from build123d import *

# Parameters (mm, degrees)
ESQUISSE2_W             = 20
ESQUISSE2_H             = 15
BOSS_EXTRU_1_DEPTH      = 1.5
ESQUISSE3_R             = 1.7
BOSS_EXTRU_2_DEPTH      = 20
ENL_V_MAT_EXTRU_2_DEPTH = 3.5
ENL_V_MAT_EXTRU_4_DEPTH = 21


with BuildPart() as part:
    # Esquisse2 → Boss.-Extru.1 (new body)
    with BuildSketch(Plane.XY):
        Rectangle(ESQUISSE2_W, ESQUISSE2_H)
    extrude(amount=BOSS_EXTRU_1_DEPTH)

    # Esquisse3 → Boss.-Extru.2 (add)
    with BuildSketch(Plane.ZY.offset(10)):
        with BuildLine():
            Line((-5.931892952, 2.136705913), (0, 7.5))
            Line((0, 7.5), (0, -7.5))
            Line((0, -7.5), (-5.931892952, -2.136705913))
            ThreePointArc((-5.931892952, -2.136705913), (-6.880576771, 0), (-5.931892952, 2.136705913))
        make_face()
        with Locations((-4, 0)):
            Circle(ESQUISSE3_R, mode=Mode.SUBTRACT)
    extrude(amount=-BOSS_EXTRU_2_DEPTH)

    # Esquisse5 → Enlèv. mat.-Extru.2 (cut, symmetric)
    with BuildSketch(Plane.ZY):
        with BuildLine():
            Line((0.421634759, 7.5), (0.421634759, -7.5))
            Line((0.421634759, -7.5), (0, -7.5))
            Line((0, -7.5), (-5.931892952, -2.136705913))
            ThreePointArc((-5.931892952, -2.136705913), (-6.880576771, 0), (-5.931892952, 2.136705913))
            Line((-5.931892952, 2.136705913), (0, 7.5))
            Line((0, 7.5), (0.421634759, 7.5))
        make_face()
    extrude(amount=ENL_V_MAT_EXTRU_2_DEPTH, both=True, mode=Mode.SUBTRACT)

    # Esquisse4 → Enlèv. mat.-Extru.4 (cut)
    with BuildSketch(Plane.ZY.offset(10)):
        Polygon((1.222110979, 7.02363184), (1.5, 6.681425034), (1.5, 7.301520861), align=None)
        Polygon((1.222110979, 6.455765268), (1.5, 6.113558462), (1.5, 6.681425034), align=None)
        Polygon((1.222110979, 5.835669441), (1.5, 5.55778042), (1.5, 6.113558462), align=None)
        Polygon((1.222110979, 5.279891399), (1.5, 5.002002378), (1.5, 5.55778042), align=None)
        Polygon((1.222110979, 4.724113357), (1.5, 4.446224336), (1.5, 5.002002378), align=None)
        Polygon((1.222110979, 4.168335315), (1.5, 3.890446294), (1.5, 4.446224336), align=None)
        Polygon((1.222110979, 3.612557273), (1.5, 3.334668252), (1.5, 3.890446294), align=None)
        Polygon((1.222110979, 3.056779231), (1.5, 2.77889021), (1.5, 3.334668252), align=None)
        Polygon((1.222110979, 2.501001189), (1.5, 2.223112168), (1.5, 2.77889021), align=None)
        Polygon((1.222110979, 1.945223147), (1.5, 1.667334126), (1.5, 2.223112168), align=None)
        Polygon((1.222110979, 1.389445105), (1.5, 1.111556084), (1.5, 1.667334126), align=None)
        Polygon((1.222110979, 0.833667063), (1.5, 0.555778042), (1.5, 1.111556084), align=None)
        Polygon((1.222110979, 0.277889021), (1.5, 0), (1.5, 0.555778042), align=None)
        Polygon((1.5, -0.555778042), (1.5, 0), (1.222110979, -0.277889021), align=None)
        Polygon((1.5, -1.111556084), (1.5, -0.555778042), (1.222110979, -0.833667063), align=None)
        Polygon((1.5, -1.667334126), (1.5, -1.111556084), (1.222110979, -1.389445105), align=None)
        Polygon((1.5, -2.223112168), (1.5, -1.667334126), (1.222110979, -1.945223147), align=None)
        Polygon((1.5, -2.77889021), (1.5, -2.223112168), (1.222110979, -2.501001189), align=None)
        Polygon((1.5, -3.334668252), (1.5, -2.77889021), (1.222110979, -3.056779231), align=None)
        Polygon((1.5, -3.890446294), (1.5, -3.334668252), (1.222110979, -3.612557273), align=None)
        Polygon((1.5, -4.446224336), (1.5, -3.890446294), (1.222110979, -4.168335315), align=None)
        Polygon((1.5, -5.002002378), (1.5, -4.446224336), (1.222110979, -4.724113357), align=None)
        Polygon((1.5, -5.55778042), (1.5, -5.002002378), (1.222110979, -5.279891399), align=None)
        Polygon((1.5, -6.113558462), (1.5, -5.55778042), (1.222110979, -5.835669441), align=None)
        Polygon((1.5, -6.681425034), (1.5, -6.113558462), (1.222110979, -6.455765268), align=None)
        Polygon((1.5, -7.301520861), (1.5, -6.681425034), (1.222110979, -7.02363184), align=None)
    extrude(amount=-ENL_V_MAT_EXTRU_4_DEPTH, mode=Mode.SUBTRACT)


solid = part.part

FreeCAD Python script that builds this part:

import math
import FreeCAD as App
import Part
import Sketcher
Q = App.Units.Quantity

doc = App.newDocument("Part")
body = doc.addObject("PartDesign::Body", "Body")

sketch1 = body.newObject("Sketcher::SketchObject", "Sketch")
sketch1.AttachmentSupport = (doc.getObject("XY_Plane"), [""])
sketch1.MapMode = "FlatFace"
sketch1.addGeometry(Part.LineSegment(App.Vector(-10, 8, 0), App.Vector(-10, -8, 0)), False)
sketch1.addGeometry(Part.LineSegment(App.Vector(-10, -8, 0), App.Vector(10, -8, 0)), False)
sketch1.addGeometry(Part.LineSegment(App.Vector(10, -8, 0), App.Vector(10, 8, 0)), False)
sketch1.addGeometry(Part.LineSegment(App.Vector(10, 8, 0), App.Vector(-10, 8, 0)), False)
sketch1.addConstraint(Sketcher.Constraint("Coincident", 0, 2, 1, 1))
sketch1.addConstraint(Sketcher.Constraint("Coincident", 1, 2, 2, 1))
sketch1.addConstraint(Sketcher.Constraint("Coincident", 2, 2, 3, 1))
sketch1.addConstraint(Sketcher.Constraint("Coincident", 3, 2, 0, 1))
sketch1.addConstraint(Sketcher.Constraint("Vertical", 0))
sketch1.addConstraint(Sketcher.Constraint("Horizontal", 1))
sketch1.addConstraint(Sketcher.Constraint("Vertical", 2))
sketch1.addConstraint(Sketcher.Constraint("Horizontal", 3))
sketch1.addConstraint(Sketcher.Constraint("Symmetric", 0, 2, 2, 2, -1, 1))
sketch1.addConstraint(Sketcher.Constraint("DistanceX", 1, 1, 1, 2, Q("20 mm")))
sketch1.addConstraint(Sketcher.Constraint("DistanceY", 0, 2, 0, 1, Q("15 mm")))
pad1 = body.newObject("PartDesign::Pad", "Pad")
pad1.Profile = sketch1
pad1.Length = 1.5

sketch2 = body.newObject("Sketcher::SketchObject", "Sketch001")
sketch2.AttachmentSupport = (doc.getObject("YZ_Plane"), [""])
sketch2.MapMode = "FlatFace"
sketch2.AttachmentOffset = App.Placement(App.Vector(0, 0, -10), App.Rotation())
sketch2.addGeometry(Part.LineSegment(App.Vector(7.5, 0, 0), App.Vector(2.1, -5.9, 0)), False)
sketch2.addGeometry(Part.ArcOfCircle(Part.Circle(App.Vector(0, -4, 0), App.Vector(0, 0, 1), 2.9), math.radians(-138), math.radians(-42)), False)
sketch2.addGeometry(Part.LineSegment(App.Vector(-2.1, -5.9, 0), App.Vector(-7.5, 0, 0)), False)
sketch2.addGeometry(Part.LineSegment(App.Vector(-7.5, 0, 0), App.Vector(7.5, 0, 0)), False)
sketch2.addGeometry(Part.Circle(App.Vector(0, -4, 0), App.Vector(0, 0, 1), 1.7), False)
sketch2.addConstraint(Sketcher.Constraint("Tangent", 0, 2, 1, 2))
sketch2.addConstraint(Sketcher.Constraint("Tangent", 1, 1, 2, 1))
sketch2.addConstraint(Sketcher.Constraint("Coincident", 2, 2, 3, 1))
sketch2.addConstraint(Sketcher.Constraint("Coincident", 3, 2, 0, 1))
sketch2.addConstraint(Sketcher.Constraint("Horizontal", 3))
sketch2.addConstraint(Sketcher.Constraint("Coincident", 4, 3, 1, 3))
sketch2.addConstraint(Sketcher.Constraint("Symmetric", 2, 2, 3, 2, -1, 1))
sketch2.addConstraint(Sketcher.Constraint("PointOnObject", 1, 3, -2))
sketch2.addConstraint(Sketcher.Constraint("Diameter", 4, Q("3.4 mm")))
sketch2.addConstraint(Sketcher.Constraint("DistanceX", 3, 1, 3, 2, Q("15 mm")))
sketch2.addConstraint(Sketcher.Constraint("DistanceY", 1, 3, -1, 1, Q("4 mm")))
sketch2.addConstraint(Sketcher.Constraint("Radius", 1, Q("2.880577 mm")))
pad2 = body.newObject("PartDesign::Pad", "Pad001")
pad2.Profile = sketch2
pad2.Length = 20

sketch3 = body.newObject("Sketcher::SketchObject", "Sketch002")
sketch3.AttachmentSupport = (doc.getObject("YZ_Plane"), [""])
sketch3.MapMode = "FlatFace"
sketch3.addGeometry(Part.LineSegment(App.Vector(-7.5, 0.42, 0), App.Vector(7.5, 0.42, 0)), False)
sketch3.addGeometry(Part.LineSegment(App.Vector(7.5, 0.42, 0), App.Vector(7.5, 0, 0)), False)
sketch3.addGeometry(Part.LineSegment(App.Vector(7.5, 0, 0), App.Vector(2.14, -5.93, 0)), False)
sketch3.addGeometry(Part.ArcOfCircle(Part.Circle(App.Vector(0, -4, 0), App.Vector(0, 0, 1), 2.88), math.radians(-138), math.radians(-42)), False)
sketch3.addGeometry(Part.LineSegment(App.Vector(-2.14, -5.93, 0), App.Vector(-7.5, 0, 0)), False)
sketch3.addGeometry(Part.LineSegment(App.Vector(-7.5, 0, 0), App.Vector(-7.5, 0.42, 0)), False)
sketch3.addConstraint(Sketcher.Constraint("Coincident", 0, 2, 1, 1))
sketch3.addConstraint(Sketcher.Constraint("Coincident", 1, 2, 2, 1))
sketch3.addConstraint(Sketcher.Constraint("Tangent", 2, 2, 3, 2))
sketch3.addConstraint(Sketcher.Constraint("Tangent", 3, 1, 4, 1))
sketch3.addConstraint(Sketcher.Constraint("Coincident", 4, 2, 5, 1))
sketch3.addConstraint(Sketcher.Constraint("Coincident", 5, 2, 0, 1))
sketch3.addConstraint(Sketcher.Constraint("Horizontal", 0))
sketch3.addConstraint(Sketcher.Constraint("Vertical", 1))
sketch3.addConstraint(Sketcher.Constraint("Vertical", 5))
sketch3.addConstraint(Sketcher.Constraint("Symmetric", 1, 2, 4, 2, -1, 1))
sketch3.addConstraint(Sketcher.Constraint("Symmetric", 2, 2, 3, 1, -2))
sketch3.addConstraint(Sketcher.Constraint("DistanceX", 0, 1, 0, 2, Q("15 mm")))
sketch3.addConstraint(Sketcher.Constraint("DistanceY", 3, 3, -1, 1, Q("4 mm")))
sketch3.addConstraint(Sketcher.Constraint("Radius", 3, Q("2.880577 mm")))
sketch3.addConstraint(Sketcher.Constraint("DistanceY", 1, 2, 1, 1, Q("0.421635 mm")))
pocket1 = body.newObject("PartDesign::Pocket", "Pocket")
pocket1.Profile = sketch3
pocket1.Length = 7
pocket1.Midplane = True

sketch4 = body.newObject("Sketcher::SketchObject", "Sketch003")
sketch4.AttachmentSupport = (doc.getObject("YZ_Plane"), [""])
sketch4.MapMode = "FlatFace"
sketch4.AttachmentOffset = App.Placement(App.Vector(0, 0, -10), App.Rotation())
sketch4.addGeometry(Part.LineSegment(App.Vector(7.02, 1.22, 0), App.Vector(6.68, 1.5, 0)), False)
sketch4.addGeometry(Part.LineSegment(App.Vector(6.68, 1.5, 0), App.Vector(7.3, 1.5, 0)), False)
sketch4.addGeometry(Part.LineSegment(App.Vector(7.3, 1.5, 0), App.Vector(7.02, 1.22, 0)), False)
sketch4.addGeometry(Part.LineSegment(App.Vector(6.46, 1.22, 0), App.Vector(6.11, 1.5, 0)), False)
sketch4.addGeometry(Part.LineSegment(App.Vector(6.11, 1.5, 0), App.Vector(6.68, 1.5, 0)), False)
sketch4.addGeometry(Part.LineSegment(App.Vector(6.68, 1.5, 0), App.Vector(6.46, 1.22, 0)), False)
sketch4.addGeometry(Part.LineSegment(App.Vector(5.84, 1.22, 0), App.Vector(5.56, 1.5, 0)), False)
sketch4.addGeometry(Part.LineSegment(App.Vector(5.56, 1.5, 0), App.Vector(6.11, 1.5, 0)), False)
sketch4.addGeometry(Part.LineSegment(App.Vector(6.11, 1.5, 0), App.Vector(5.84, 1.22, 0)), False)
sketch4.addGeometry(Part.LineSegment(App.Vector(5.28, 1.22, 0), App.Vector(5, 1.5, 0)), False)
sketch4.addGeometry(Part.LineSegment(App.Vector(5, 1.5, 0), App.Vector(5.56, 1.5, 0)), False)
sketch4.addGeometry(Part.LineSegment(App.Vector(5.56, 1.5, 0), App.Vector(5.28, 1.22, 0)), False)
sketch4.addGeometry(Part.LineSegment(App.Vector(4.72, 1.22, 0), App.Vector(4.45, 1.5, 0)), False)
sketch4.addGeometry(Part.LineSegment(App.Vector(4.45, 1.5, 0), App.Vector(5, 1.5, 0)), False)
sketch4.addGeometry(Part.LineSegment(App.Vector(5, 1.5, 0), App.Vector(4.72, 1.22, 0)), False)
sketch4.addGeometry(Part.LineSegment(App.Vector(4.17, 1.22, 0), App.Vector(3.89, 1.5, 0)), False)
sketch4.addGeometry(Part.LineSegment(App.Vector(3.89, 1.5, 0), App.Vector(4.45, 1.5, 0)), False)
sketch4.addGeometry(Part.LineSegment(App.Vector(4.45, 1.5, 0), App.Vector(4.17, 1.22, 0)), False)
sketch4.addGeometry(Part.LineSegment(App.Vector(3.61, 1.22, 0), App.Vector(3.33, 1.5, 0)), False)
sketch4.addGeometry(Part.LineSegment(App.Vector(3.33, 1.5, 0), App.Vector(3.89, 1.5, 0)), False)
sketch4.addGeometry(Part.LineSegment(App.Vector(3.89, 1.5, 0), App.Vector(3.61, 1.22, 0)), False)
sketch4.addGeometry(Part.LineSegment(App.Vector(3.06, 1.22, 0), App.Vector(2.78, 1.5, 0)), False)
sketch4.addGeometry(Part.LineSegment(App.Vector(2.78, 1.5, 0), App.Vector(3.33, 1.5, 0)), False)
sketch4.addGeometry(Part.LineSegment(App.Vector(3.33, 1.5, 0), App.Vector(3.06, 1.22, 0)), False)
sketch4.addGeometry(Part.LineSegment(App.Vector(2.5, 1.22, 0), App.Vector(2.22, 1.5, 0)), False)
sketch4.addGeometry(Part.LineSegment(App.Vector(2.22, 1.5, 0), App.Vector(2.78, 1.5, 0)), False)
sketch4.addGeometry(Part.LineSegment(App.Vector(2.78, 1.5, 0), App.Vector(2.5, 1.22, 0)), False)
sketch4.addGeometry(Part.LineSegment(App.Vector(1.95, 1.22, 0), App.Vector(1.67, 1.5, 0)), False)
sketch4.addGeometry(Part.LineSegment(App.Vector(1.67, 1.5, 0), App.Vector(2.22, 1.5, 0)), False)
sketch4.addGeometry(Part.LineSegment(App.Vector(2.22, 1.5, 0), App.Vector(1.95, 1.22, 0)), False)
sketch4.addGeometry(Part.LineSegment(App.Vector(1.39, 1.22, 0), App.Vector(1.11, 1.5, 0)), False)
sketch4.addGeometry(Part.LineSegment(App.Vector(1.11, 1.5, 0), App.Vector(1.67, 1.5, 0)), False)
sketch4.addGeometry(Part.LineSegment(App.Vector(1.67, 1.5, 0), App.Vector(1.39, 1.22, 0)), False)
sketch4.addGeometry(Part.LineSegment(App.Vector(0.83, 1.22, 0), App.Vector(0.56, 1.5, 0)), False)
sketch4.addGeometry(Part.LineSegment(App.Vector(0.56, 1.5, 0), App.Vector(1.11, 1.5, 0)), False)
sketch4.addGeometry(Part.LineSegment(App.Vector(1.11, 1.5, 0), App.Vector(0.83, 1.22, 0)), False)
sketch4.addGeometry(Part.LineSegment(App.Vector(0.28, 1.22, 0), App.Vector(0, 1.5, 0)), False)
sketch4.addGeometry(Part.LineSegment(App.Vector(0, 1.5, 0), App.Vector(0.56, 1.5, 0)), False)
sketch4.addGeometry(Part.LineSegment(App.Vector(0.56, 1.5, 0), App.Vector(0.28, 1.22, 0)), False)
sketch4.addGeometry(Part.LineSegment(App.Vector(-0.56, 1.5, 0), App.Vector(0, 1.5, 0)), False)
sketch4.addGeometry(Part.LineSegment(App.Vector(0, 1.5, 0), App.Vector(-0.28, 1.22, 0)), False)
sketch4.addGeometry(Part.LineSegment(App.Vector(-0.28, 1.22, 0), App.Vector(-0.56, 1.5, 0)), False)
sketch4.addGeometry(Part.LineSegment(App.Vector(-1.11, 1.5, 0), App.Vector(-0.56, 1.5, 0)), False)
sketch4.addGeometry(Part.LineSegment(App.Vector(-0.56, 1.5, 0), App.Vector(-0.83, 1.22, 0)), False)
sketch4.addGeometry(Part.LineSegment(App.Vector(-0.83, 1.22, 0), App.Vector(-1.11, 1.5, 0)), False)
sketch4.addGeometry(Part.LineSegment(App.Vector(-1.67, 1.5, 0), App.Vector(-1.11, 1.5, 0)), False)
sketch4.addGeometry(Part.LineSegment(App.Vector(-1.11, 1.5, 0), App.Vector(-1.39, 1.22, 0)), False)
sketch4.addGeometry(Part.LineSegment(App.Vector(-1.39, 1.22, 0), App.Vector(-1.67, 1.5, 0)), False)
sketch4.addGeometry(Part.LineSegment(App.Vector(-2.22, 1.5, 0), App.Vector(-1.67, 1.5, 0)), False)
sketch4.addGeometry(Part.LineSegment(App.Vector(-1.67, 1.5, 0), App.Vector(-1.95, 1.22, 0)), False)
sketch4.addGeometry(Part.LineSegment(App.Vector(-1.95, 1.22, 0), App.Vector(-2.22, 1.5, 0)), False)
sketch4.addGeometry(Part.LineSegment(App.Vector(-2.78, 1.5, 0), App.Vector(-2.22, 1.5, 0)), False)
sketch4.addGeometry(Part.LineSegment(App.Vector(-2.22, 1.5, 0), App.Vector(-2.5, 1.22, 0)), False)
sketch4.addGeometry(Part.LineSegment(App.Vector(-2.5, 1.22, 0), App.Vector(-2.78, 1.5, 0)), False)
sketch4.addGeometry(Part.LineSegment(App.Vector(-3.33, 1.5, 0), App.Vector(-2.78, 1.5, 0)), False)
sketch4.addGeometry(Part.LineSegment(App.Vector(-2.78, 1.5, 0), App.Vector(-3.06, 1.22, 0)), False)
sketch4.addGeometry(Part.LineSegment(App.Vector(-3.06, 1.22, 0), App.Vector(-3.33, 1.5, 0)), False)
sketch4.addGeometry(Part.LineSegment(App.Vector(-3.89, 1.5, 0), App.Vector(-3.33, 1.5, 0)), False)
sketch4.addGeometry(Part.LineSegment(App.Vector(-3.33, 1.5, 0), App.Vector(-3.61, 1.22, 0)), False)
sketch4.addGeometry(Part.LineSegment(App.Vector(-3.61, 1.22, 0), App.Vector(-3.89, 1.5, 0)), False)
sketch4.addGeometry(Part.LineSegment(App.Vector(-4.45, 1.5, 0), App.Vector(-3.89, 1.5, 0)), False)
sketch4.addGeometry(Part.LineSegment(App.Vector(-3.89, 1.5, 0), App.Vector(-4.17, 1.22, 0)), False)
sketch4.addGeometry(Part.LineSegment(App.Vector(-4.17, 1.22, 0), App.Vector(-4.45, 1.5, 0)), False)
sketch4.addGeometry(Part.LineSegment(App.Vector(-5, 1.5, 0), App.Vector(-4.45, 1.5, 0)), False)
sketch4.addGeometry(Part.LineSegment(App.Vector(-4.45, 1.5, 0), App.Vector(-4.72, 1.22, 0)), False)
sketch4.addGeometry(Part.LineSegment(App.Vector(-4.72, 1.22, 0), App.Vector(-5, 1.5, 0)), False)
sketch4.addGeometry(Part.LineSegment(App.Vector(-5.56, 1.5, 0), App.Vector(-5, 1.5, 0)), False)
sketch4.addGeometry(Part.LineSegment(App.Vector(-5, 1.5, 0), App.Vector(-5.28, 1.22, 0)), False)
sketch4.addGeometry(Part.LineSegment(App.Vector(-5.28, 1.22, 0), App.Vector(-5.56, 1.5, 0)), False)
sketch4.addGeometry(Part.LineSegment(App.Vector(-6.11, 1.5, 0), App.Vector(-5.56, 1.5, 0)), False)
sketch4.addGeometry(Part.LineSegment(App.Vector(-5.56, 1.5, 0), App.Vector(-5.84, 1.22, 0)), False)
sketch4.addGeometry(Part.LineSegment(App.Vector(-5.84, 1.22, 0), App.Vector(-6.11, 1.5, 0)), False)
sketch4.addGeometry(Part.LineSegment(App.Vector(-6.68, 1.5, 0), App.Vector(-6.11, 1.5, 0)), False)
sketch4.addGeometry(Part.LineSegment(App.Vector(-6.11, 1.5, 0), App.Vector(-6.46, 1.22, 0)), False)
sketch4.addGeometry(Part.LineSegment(App.Vector(-6.46, 1.22, 0), App.Vector(-6.68, 1.5, 0)), False)
sketch4.addGeometry(Part.LineSegment(App.Vector(-7.3, 1.5, 0), App.Vector(-6.68, 1.5, 0)), False)
sketch4.addGeometry(Part.LineSegment(App.Vector(-6.68, 1.5, 0), App.Vector(-7.02, 1.22, 0)), False)
sketch4.addGeometry(Part.LineSegment(App.Vector(-7.02, 1.22, 0), App.Vector(-7.3, 1.5, 0)), False)
sketch4.addConstraint(Sketcher.Constraint("Coincident", 0, 2, 1, 1))
sketch4.addConstraint(Sketcher.Constraint("Coincident", 1, 2, 2, 1))
sketch4.addConstraint(Sketcher.Constraint("Coincident", 2, 2, 0, 1))
sketch4.addConstraint(Sketcher.Constraint("Coincident", 3, 2, 4, 1))
sketch4.addConstraint(Sketcher.Constraint("Coincident", 4, 2, 5, 1))
sketch4.addConstraint(Sketcher.Constraint("Coincident", 5, 2, 3, 1))
sketch4.addConstraint(Sketcher.Constraint("Coincident", 6, 2, 7, 1))
sketch4.addConstraint(Sketcher.Constraint("Coincident", 7, 2, 8, 1))
sketch4.addConstraint(Sketcher.Constraint("Coincident", 8, 2, 6, 1))
sketch4.addConstraint(Sketcher.Constraint("Coincident", 9, 2, 10, 1))
sketch4.addConstraint(Sketcher.Constraint("Coincident", 10, 2, 11, 1))
sketch4.addConstraint(Sketcher.Constraint("Coincident", 11, 2, 9, 1))
sketch4.addConstraint(Sketcher.Constraint("Coincident", 12, 2, 13, 1))
sketch4.addConstraint(Sketcher.Constraint("Coincident", 13, 2, 14, 1))
sketch4.addConstraint(Sketcher.Constraint("Coincident", 14, 2, 12, 1))
sketch4.addConstraint(Sketcher.Constraint("Coincident", 15, 2, 16, 1))
sketch4.addConstraint(Sketcher.Constraint("Coincident", 16, 2, 17, 1))
sketch4.addConstraint(Sketcher.Constraint("Coincident", 17, 2, 15, 1))
sketch4.addConstraint(Sketcher.Constraint("Coincident", 18, 2, 19, 1))
sketch4.addConstraint(Sketcher.Constraint("Coincident", 19, 2, 20, 1))
sketch4.addConstraint(Sketcher.Constraint("Coincident", 20, 2, 18, 1))
sketch4.addConstraint(Sketcher.Constraint("Coincident", 21, 2, 22, 1))
sketch4.addConstraint(Sketcher.Constraint("Coincident", 22, 2, 23, 1))
sketch4.addConstraint(Sketcher.Constraint("Coincident", 23, 2, 21, 1))
sketch4.addConstraint(Sketcher.Constraint("Coincident", 24, 2, 25, 1))
sketch4.addConstraint(Sketcher.Constraint("Coincident", 25, 2, 26, 1))
sketch4.addConstraint(Sketcher.Constraint("Coincident", 26, 2, 24, 1))
sketch4.addConstraint(Sketcher.Constraint("Coincident", 27, 2, 28, 1))
sketch4.addConstraint(Sketcher.Constraint("Coincident", 28, 2, 29, 1))
sketch4.addConstraint(Sketcher.Constraint("Coincident", 29, 2, 27, 1))
sketch4.addConstraint(Sketcher.Constraint("Coincident", 30, 2, 31, 1))
sketch4.addConstraint(Sketcher.Constraint("Coincident", 31, 2, 32, 1))
sketch4.addConstraint(Sketcher.Constraint("Coincident", 32, 2, 30, 1))
sketch4.addConstraint(Sketcher.Constraint("Coincident", 33, 2, 34, 1))
sketch4.addConstraint(Sketcher.Constraint("Coincident", 34, 2, 35, 1))
sketch4.addConstraint(Sketcher.Constraint("Coincident", 35, 2, 33, 1))
sketch4.addConstraint(Sketcher.Constraint("Coincident", 36, 2, 37, 1))
sketch4.addConstraint(Sketcher.Constraint("Coincident", 37, 2, 38, 1))
sketch4.addConstraint(Sketcher.Constraint("Coincident", 38, 2, 36, 1))
sketch4.addConstraint(Sketcher.Constraint("Coincident", 39, 2, 40, 1))
sketch4.addConstraint(Sketcher.Constraint("Coincident", 40, 2, 41, 1))
sketch4.addConstraint(Sketcher.Constraint("Coincident", 41, 2, 39, 1))
sketch4.addConstraint(Sketcher.Constraint("Coincident", 42, 2, 43, 1))
sketch4.addConstraint(Sketcher.Constraint("Coincident", 43, 2, 44, 1))
sketch4.addConstraint(Sketcher.Constraint("Coincident", 44, 2, 42, 1))
sketch4.addConstraint(Sketcher.Constraint("Coincident", 45, 2, 46, 1))
sketch4.addConstraint(Sketcher.Constraint("Coincident", 46, 2, 47, 1))
sketch4.addConstraint(Sketcher.Constraint("Coincident", 47, 2, 45, 1))
sketch4.addConstraint(Sketcher.Constraint("Coincident", 48, 2, 49, 1))
sketch4.addConstraint(Sketcher.Constraint("Coincident", 49, 2, 50, 1))
sketch4.addConstraint(Sketcher.Constraint("Coincident", 50, 2, 48, 1))
sketch4.addConstraint(Sketcher.Constraint("Coincident", 51, 2, 52, 1))
sketch4.addConstraint(Sketcher.Constraint("Coincident", 52, 2, 53, 1))
sketch4.addConstraint(Sketcher.Constraint("Coincident", 53, 2, 51, 1))
sketch4.addConstraint(Sketcher.Constraint("Coincident", 54, 2, 55, 1))
sketch4.addConstraint(Sketcher.Constraint("Coincident", 55, 2, 56, 1))
sketch4.addConstraint(Sketcher.Constraint("Coincident", 56, 2, 54, 1))
sketch4.addConstraint(Sketcher.Constraint("Coincident", 57, 2, 58, 1))
sketch4.addConstraint(Sketcher.Constraint("Coincident", 58, 2, 59, 1))
sketch4.addConstraint(Sketcher.Constraint("Coincident", 59, 2, 57, 1))
sketch4.addConstraint(Sketcher.Constraint("Coincident", 60, 2, 61, 1))
sketch4.addConstraint(Sketcher.Constraint("Coincident", 61, 2, 62, 1))
sketch4.addConstraint(Sketcher.Constraint("Coincident", 62, 2, 60, 1))
sketch4.addConstraint(Sketcher.Constraint("Coincident", 63, 2, 64, 1))
sketch4.addConstraint(Sketcher.Constraint("Coincident", 64, 2, 65, 1))
sketch4.addConstraint(Sketcher.Constraint("Coincident", 65, 2, 63, 1))
sketch4.addConstraint(Sketcher.Constraint("Coincident", 66, 2, 67, 1))
sketch4.addConstraint(Sketcher.Constraint("Coincident", 67, 2, 68, 1))
sketch4.addConstraint(Sketcher.Constraint("Coincident", 68, 2, 66, 1))
sketch4.addConstraint(Sketcher.Constraint("Coincident", 69, 2, 70, 1))
sketch4.addConstraint(Sketcher.Constraint("Coincident", 70, 2, 71, 1))
sketch4.addConstraint(Sketcher.Constraint("Coincident", 71, 2, 69, 1))
sketch4.addConstraint(Sketcher.Constraint("Coincident", 72, 2, 73, 1))
sketch4.addConstraint(Sketcher.Constraint("Coincident", 73, 2, 74, 1))
sketch4.addConstraint(Sketcher.Constraint("Coincident", 74, 2, 72, 1))
sketch4.addConstraint(Sketcher.Constraint("Coincident", 75, 2, 76, 1))
sketch4.addConstraint(Sketcher.Constraint("Coincident", 76, 2, 77, 1))
sketch4.addConstraint(Sketcher.Constraint("Coincident", 77, 2, 75, 1))
sketch4.addConstraint(Sketcher.Constraint("Horizontal", 1))
sketch4.addConstraint(Sketcher.Constraint("Horizontal", 4))
sketch4.addConstraint(Sketcher.Constraint("Horizontal", 7))
sketch4.addConstraint(Sketcher.Constraint("Horizontal", 10))
sketch4.addConstraint(Sketcher.Constraint("Horizontal", 13))
sketch4.addConstraint(Sketcher.Constraint("Horizontal", 16))
sketch4.addConstraint(Sketcher.Constraint("Horizontal", 19))
sketch4.addConstraint(Sketcher.Constraint("Horizontal", 22))
sketch4.addConstraint(Sketcher.Constraint("Horizontal", 25))
sketch4.addConstraint(Sketcher.Constraint("Horizontal", 28))
sketch4.addConstraint(Sketcher.Constraint("Horizontal", 31))
sketch4.addConstraint(Sketcher.Constraint("Horizontal", 34))
sketch4.addConstraint(Sketcher.Constraint("Horizontal", 37))
sketch4.addConstraint(Sketcher.Constraint("Horizontal", 39))
sketch4.addConstraint(Sketcher.Constraint("Horizontal", 42))
sketch4.addConstraint(Sketcher.Constraint("Horizontal", 45))
sketch4.addConstraint(Sketcher.Constraint("Horizontal", 48))
sketch4.addConstraint(Sketcher.Constraint("Horizontal", 51))
sketch4.addConstraint(Sketcher.Constraint("Horizontal", 54))
sketch4.addConstraint(Sketcher.Constraint("Horizontal", 57))
sketch4.addConstraint(Sketcher.Constraint("Horizontal", 60))
sketch4.addConstraint(Sketcher.Constraint("Horizontal", 63))
sketch4.addConstraint(Sketcher.Constraint("Horizontal", 66))
sketch4.addConstraint(Sketcher.Constraint("Horizontal", 69))
sketch4.addConstraint(Sketcher.Constraint("Horizontal", 72))
sketch4.addConstraint(Sketcher.Constraint("Horizontal", 75))
sketch4.addConstraint(Sketcher.Constraint("Coincident", 4, 2, 0, 2))
sketch4.addConstraint(Sketcher.Constraint("Coincident", 7, 2, 3, 2))
sketch4.addConstraint(Sketcher.Constraint("Coincident", 10, 2, 6, 2))
sketch4.addConstraint(Sketcher.Constraint("Coincident", 13, 2, 9, 2))
sketch4.addConstraint(Sketcher.Constraint("Coincident", 16, 2, 12, 2))
sketch4.addConstraint(Sketcher.Constraint("Coincident", 19, 2, 15, 2))
sketch4.addConstraint(Sketcher.Constraint("Coincident", 22, 2, 18, 2))
sketch4.addConstraint(Sketcher.Constraint("Coincident", 25, 2, 21, 2))
sketch4.addConstraint(Sketcher.Constraint("Coincident", 28, 2, 24, 2))
sketch4.addConstraint(Sketcher.Constraint("Coincident", 31, 2, 27, 2))
sketch4.addConstraint(Sketcher.Constraint("Coincident", 34, 2, 30, 2))
sketch4.addConstraint(Sketcher.Constraint("Coincident", 37, 2, 33, 2))
sketch4.addConstraint(Sketcher.Constraint("Coincident", 39, 2, 36, 2))
sketch4.addConstraint(Sketcher.Constraint("Coincident", 42, 2, 41, 2))
sketch4.addConstraint(Sketcher.Constraint("Coincident", 45, 2, 44, 2))
sketch4.addConstraint(Sketcher.Constraint("Coincident", 48, 2, 47, 2))
sketch4.addConstraint(Sketcher.Constraint("Coincident", 51, 2, 50, 2))
sketch4.addConstraint(Sketcher.Constraint("Coincident", 54, 2, 53, 2))
sketch4.addConstraint(Sketcher.Constraint("Coincident", 57, 2, 56, 2))
sketch4.addConstraint(Sketcher.Constraint("Coincident", 60, 2, 59, 2))
sketch4.addConstraint(Sketcher.Constraint("Coincident", 63, 2, 62, 2))
sketch4.addConstraint(Sketcher.Constraint("Coincident", 66, 2, 65, 2))
sketch4.addConstraint(Sketcher.Constraint("Coincident", 69, 2, 68, 2))
sketch4.addConstraint(Sketcher.Constraint("Coincident", 72, 2, 71, 2))
sketch4.addConstraint(Sketcher.Constraint("Coincident", 75, 2, 74, 2))
sketch4.addConstraint(Sketcher.Constraint("Symmetric", 38, 2, 40, 2, -2))
sketch4.addConstraint(Sketcher.Constraint("Symmetric", 35, 2, 43, 2, -2))
sketch4.addConstraint(Sketcher.Constraint("Symmetric", 32, 2, 46, 2, -2))
sketch4.addConstraint(Sketcher.Constraint("Symmetric", 29, 2, 49, 2, -2))
sketch4.addConstraint(Sketcher.Constraint("Symmetric", 26, 2, 52, 2, -2))
sketch4.addConstraint(Sketcher.Constraint("Symmetric", 23, 2, 55, 2, -2))
sketch4.addConstraint(Sketcher.Constraint("Symmetric", 20, 2, 58, 2, -2))
sketch4.addConstraint(Sketcher.Constraint("Symmetric", 17, 2, 61, 2, -2))
sketch4.addConstraint(Sketcher.Constraint("Symmetric", 14, 2, 64, 2, -2))
sketch4.addConstraint(Sketcher.Constraint("Symmetric", 11, 2, 67, 2, -2))
sketch4.addConstraint(Sketcher.Constraint("Symmetric", 8, 2, 70, 2, -2))
sketch4.addConstraint(Sketcher.Constraint("Symmetric", 5, 2, 73, 2, -2))
sketch4.addConstraint(Sketcher.Constraint("Symmetric", 2, 2, 76, 2, -2))
sketch4.addConstraint(Sketcher.Constraint("PointOnObject", 36, 2, -2))
sketch4.addConstraint(Sketcher.Constraint("Parallel", 0, 3))
sketch4.addConstraint(Sketcher.Constraint("Perpendicular", 3, 5))
sketch4.addConstraint(Sketcher.Constraint("Perpendicular", 2, 6))
sketch4.addConstraint(Sketcher.Constraint("Perpendicular", 6, 8))
sketch4.addConstraint(Sketcher.Constraint("Perpendicular", 8, 9))
sketch4.addConstraint(Sketcher.Constraint("Perpendicular", 9, 11))
sketch4.addConstraint(Sketcher.Constraint("Perpendicular", 11, 12))
sketch4.addConstraint(Sketcher.Constraint("Perpendicular", 12, 14))
sketch4.addConstraint(Sketcher.Constraint("Perpendicular", 14, 15))
sketch4.addConstraint(Sketcher.Constraint("Perpendicular", 15, 17))
sketch4.addConstraint(Sketcher.Constraint("Perpendicular", 17, 18))
sketch4.addConstraint(Sketcher.Constraint("Perpendicular", 18, 20))
sketch4.addConstraint(Sketcher.Constraint("Perpendicular", 20, 21))
sketch4.addConstraint(Sketcher.Constraint("Perpendicular", 21, 23))
sketch4.addConstraint(Sketcher.Constraint("Perpendicular", 23, 24))
sketch4.addConstraint(Sketcher.Constraint("Perpendicular", 24, 26))
sketch4.addConstraint(Sketcher.Constraint("Perpendicular", 26, 27))
sketch4.addConstraint(Sketcher.Constraint("Perpendicular", 27, 29))
sketch4.addConstraint(Sketcher.Constraint("Perpendicular", 29, 30))
sketch4.addConstraint(Sketcher.Constraint("Perpendicular", 30, 32))
sketch4.addConstraint(Sketcher.Constraint("Perpendicular", 32, 33))
sketch4.addConstraint(Sketcher.Constraint("Perpendicular", 33, 35))
sketch4.addConstraint(Sketcher.Constraint("Perpendicular", 35, 36))
sketch4.addConstraint(Sketcher.Constraint("Perpendicular", 36, 38))
sketch4.addConstraint(Sketcher.Constraint("Parallel", 38, 40))
sketch4.addConstraint(Sketcher.Constraint("Perpendicular", 40, 41))
sketch4.addConstraint(Sketcher.Constraint("Perpendicular", 43, 44))
sketch4.addConstraint(Sketcher.Constraint("Perpendicular", 46, 47))
sketch4.addConstraint(Sketcher.Constraint("Perpendicular", 49, 50))
sketch4.addConstraint(Sketcher.Constraint("Perpendicular", 52, 53))
sketch4.addConstraint(Sketcher.Constraint("Perpendicular", 55, 56))
sketch4.addConstraint(Sketcher.Constraint("Perpendicular", 58, 59))
sketch4.addConstraint(Sketcher.Constraint("Perpendicular", 61, 62))
sketch4.addConstraint(Sketcher.Constraint("Perpendicular", 64, 65))
sketch4.addConstraint(Sketcher.Constraint("Perpendicular", 67, 68))
sketch4.addConstraint(Sketcher.Constraint("Perpendicular", 70, 71))
sketch4.addConstraint(Sketcher.Constraint("Perpendicular", 73, 74))
sketch4.addConstraint(Sketcher.Constraint("Parallel", 71, 77))
sketch4.addConstraint(Sketcher.Constraint("Horizontal", 2, 2, 5, 2))
sketch4.addConstraint(Sketcher.Constraint("Horizontal", 5, 2, 8, 2))
sketch4.addConstraint(Sketcher.Constraint("Horizontal", 8, 2, 11, 2))
sketch4.addConstraint(Sketcher.Constraint("Horizontal", 11, 2, 14, 2))
sketch4.addConstraint(Sketcher.Constraint("Horizontal", 14, 2, 17, 2))
sketch4.addConstraint(Sketcher.Constraint("Horizontal", 17, 2, 20, 2))
sketch4.addConstraint(Sketcher.Constraint("Horizontal", 20, 2, 23, 2))
sketch4.addConstraint(Sketcher.Constraint("Horizontal", 23, 2, 26, 2))
sketch4.addConstraint(Sketcher.Constraint("Horizontal", 26, 2, 29, 2))
sketch4.addConstraint(Sketcher.Constraint("Horizontal", 29, 2, 32, 2))
sketch4.addConstraint(Sketcher.Constraint("Horizontal", 32, 2, 35, 2))
sketch4.addConstraint(Sketcher.Constraint("Horizontal", 35, 2, 38, 2))
sketch4.addConstraint(Sketcher.Constraint("DistanceY", -1, 1, 0, 2, Q("1.5 mm")))
sketch4.addConstraint(Sketcher.Constraint("DistanceX", -1, 1, 26, 2, Q("2.501001 mm")))
sketch4.addConstraint(Sketcher.Constraint("DistanceX", 1, 1, 1, 2, Q("0.620096 mm")))
pocket2 = body.newObject("PartDesign::Pocket", "Pocket001")
pocket2.Profile = sketch4
pocket2.Length = 21
pocket2.Reversed = True

doc.recompute()
